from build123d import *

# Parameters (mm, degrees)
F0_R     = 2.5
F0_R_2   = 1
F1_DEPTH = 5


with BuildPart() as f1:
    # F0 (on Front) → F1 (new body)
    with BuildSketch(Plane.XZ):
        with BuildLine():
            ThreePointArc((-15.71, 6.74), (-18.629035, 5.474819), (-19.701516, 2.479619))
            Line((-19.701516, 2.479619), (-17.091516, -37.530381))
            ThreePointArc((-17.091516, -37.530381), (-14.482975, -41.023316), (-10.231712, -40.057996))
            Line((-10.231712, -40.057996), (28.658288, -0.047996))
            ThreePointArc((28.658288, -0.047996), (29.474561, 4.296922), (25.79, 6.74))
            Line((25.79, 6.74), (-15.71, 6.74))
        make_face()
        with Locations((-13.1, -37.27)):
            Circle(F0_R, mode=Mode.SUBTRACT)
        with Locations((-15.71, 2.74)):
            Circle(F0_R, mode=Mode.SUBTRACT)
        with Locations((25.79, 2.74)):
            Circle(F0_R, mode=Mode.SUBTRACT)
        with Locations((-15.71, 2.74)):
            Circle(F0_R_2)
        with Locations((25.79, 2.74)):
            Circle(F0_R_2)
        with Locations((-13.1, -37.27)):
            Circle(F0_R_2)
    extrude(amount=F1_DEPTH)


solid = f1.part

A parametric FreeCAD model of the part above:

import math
import FreeCAD as App
import Part
import Sketcher
from FreeCAD import Vector
Q = App.Units.Quantity

doc = App.newDocument("Part")
params = doc.addObject("Spreadsheet::Sheet", "Params")
for row, (alias, value) in enumerate([
    ("sketch1_diameter", "5 mm"),
    ("sketch1_diameter2", "2 mm"),
    ("sketch1_radius", "4 mm"),
    ("sketch1_width", "41.5 mm"),
    ("pad1_length", "5 mm"),
], start=1):
    params.set(f"A{row}", alias)
    params.set(f"B{row}", "=" + value)
    params.setAlias(f"B{row}", alias)

body = doc.addObject("PartDesign::Body", "Body")
body.AllowCompound = True

sketch1 = body.newObject("Sketcher::SketchObject", "Sketch")
sketch1.AttachmentSupport = (doc.getObject("XZ_Plane"), [""])
sketch1.MapMode = "FlatFace"
sketch1.addGeometry([
    Part.ArcOfCircle(Part.Circle(Vector(-15.7, 2.7, 0), Vector(0, 0, 1), 4), math.radians(90), math.radians(184)),
    Part.LineSegment(Vector(-19.7, 2.5, 0), Vector(-17.1, -37.5, 0)),
    Part.ArcOfCircle(Part.Circle(Vector(-13.1, -37.3, 0), Vector(0, 0, 1), 4), math.radians(-176), math.radians(-44)),
    Part.LineSegment(Vector(-10.2, -40.1, 0), Vector(28.7, 0, 0)),
    Part.ArcOfCircle(Part.Circle(Vector(25.8, 2.7, 0), Vector(0, 0, 1), 4), math.radians(-44), math.radians(90)),
    Part.LineSegment(Vector(25.8, 6.7, 0), Vector(-15.7, 6.7, 0)),
    Part.Circle(Vector(-13.1, -37.3, 0), Vector(0, 0, 1), 2.5),
    Part.Circle(Vector(-15.7, 2.7, 0), Vector(0, 0, 1), 2.5),
    Part.Circle(Vector(25.8, 2.7, 0), Vector(0, 0, 1), 2.5),
    Part.Circle(Vector(-15.7, 2.7, 0), Vector(0, 0, 1), 1),
    Part.Circle(Vector(25.8, 2.7, 0), Vector(0, 0, 1), 1),
    Part.Circle(Vector(-13.1, -37.3, 0), Vector(0, 0, 1), 1),
], False)
sketch1.addConstraint([
    Sketcher.Constraint("Tangent", 0, 2, 1, 1),
    Sketcher.Constraint("Tangent", 1, 2, 2, 1),
    Sketcher.Constraint("Tangent", 2, 2, 3, 1),
    Sketcher.Constraint("Tangent", 3, 2, 4, 1),
    Sketcher.Constraint("Tangent", 4, 2, 5, 1),
    Sketcher.Constraint("Tangent", 5, 2, 0, 1),
    Sketcher.Constraint("Horizontal", 5),
    Sketcher.Constraint("Coincident", 6, 3, 2, 3),
    Sketcher.Constraint("Coincident", 7, 3, 0, 3),
    Sketcher.Constraint("Coincident", 8, 3, 4, 3),
    Sketcher.Constraint("Coincident", 9, 3, 0, 3),
    Sketcher.Constraint("Coincident", 10, 3, 4, 3),
    Sketcher.Constraint("Coincident", 11, 3, 2, 3),
    Sketcher.Constraint("Equal", 0, 2),
    Sketcher.Constraint("Equal", 2, 4),
    Sketcher.Constraint("Equal", 6, 7),
    Sketcher.Constraint("Equal", 7, 8),
    Sketcher.Constraint("Equal", 9, 10),
    Sketcher.Constraint("Equal", 10, 11),
    Sketcher.Constraint("Diameter", 6, Q("5 mm")),
    Sketcher.Constraint("Diameter", 9, Q("2 mm")),
    Sketcher.Constraint("Radius", 0, Q("4 mm")),
    Sketcher.Constraint("DistanceX", 5, 2, 5, 1, Q("41.5 mm")),
    Sketcher.Constraint("DistanceX", 2, 3, -1, 1, Q("13.1 mm")),
    Sketcher.Constraint("DistanceX", 0, 3, -1, 1, Q("15.71 mm")),
    Sketcher.Constraint("DistanceY", -1, 1, 0, 3, Q("2.74 mm")),
    Sketcher.Constraint("DistanceY", 2, 3, -1, 1, Q("37.270001 mm")),
])
sketch1.setExpression("Constraints[19]", "Params.sketch1_diameter")
sketch1.setExpression("Constraints[20]", "Params.sketch1_diameter2")
sketch1.setExpression("Constraints[21]", "Params.sketch1_radius")
sketch1.setExpression("Constraints[22]", "Params.sketch1_width")
pad1 = body.newObject("PartDesign::Pad", "Pad")
pad1.Profile = sketch1
pad1.setExpression("Length", "Params.pad1_length")

doc.recompute()
